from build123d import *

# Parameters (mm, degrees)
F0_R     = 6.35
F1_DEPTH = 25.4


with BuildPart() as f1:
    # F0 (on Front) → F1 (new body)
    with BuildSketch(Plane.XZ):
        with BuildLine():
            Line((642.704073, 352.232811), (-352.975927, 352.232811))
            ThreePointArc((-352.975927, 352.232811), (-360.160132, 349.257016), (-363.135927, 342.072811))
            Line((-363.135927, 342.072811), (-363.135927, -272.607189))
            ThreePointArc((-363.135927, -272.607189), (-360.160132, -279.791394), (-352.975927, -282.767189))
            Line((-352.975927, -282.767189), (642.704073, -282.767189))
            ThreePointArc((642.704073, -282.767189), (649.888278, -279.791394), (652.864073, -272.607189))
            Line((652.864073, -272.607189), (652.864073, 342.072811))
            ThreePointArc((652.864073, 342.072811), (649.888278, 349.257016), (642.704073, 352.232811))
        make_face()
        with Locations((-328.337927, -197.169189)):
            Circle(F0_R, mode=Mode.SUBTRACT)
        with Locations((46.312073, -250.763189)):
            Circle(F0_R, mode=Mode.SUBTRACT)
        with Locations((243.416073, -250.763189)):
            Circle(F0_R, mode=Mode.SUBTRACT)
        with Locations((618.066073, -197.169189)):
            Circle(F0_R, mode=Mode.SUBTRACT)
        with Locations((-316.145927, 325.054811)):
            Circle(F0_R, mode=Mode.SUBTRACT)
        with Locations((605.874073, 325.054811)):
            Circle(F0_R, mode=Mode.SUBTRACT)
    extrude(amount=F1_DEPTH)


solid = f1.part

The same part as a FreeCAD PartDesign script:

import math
import FreeCAD as App
import Part
import Sketcher
Q = App.Units.Quantity

doc = App.newDocument("Part")
body = doc.addObject("PartDesign::Body", "Body")

# Sketch on XZ plane
sketch1 = body.newObject("Sketcher::SketchObject", "Sketch")
sketch1.AttachmentSupport = (doc.getObject("XZ_Plane"), [""])
sketch1.MapMode = "FlatFace"
sketch1.addGeometry([
    Part.LineSegment(App.Vector(643, 352, 0), App.Vector(-353, 352, 0)),  # 0
    Part.ArcOfCircle(Part.Circle(App.Vector(-353, 342, 0), App.Vector(0, 0, 1), 10), math.radians(90), math.radians(180)),  # 1
    Part.LineSegment(App.Vector(-363, 342, 0), App.Vector(-363, -273, 0)),  # 2
    Part.ArcOfCircle(Part.Circle(App.Vector(-353, -273, 0), App.Vector(0, 0, 1), 10), math.radians(180), math.radians(270)),  # 3
    Part.LineSegment(App.Vector(-353, -283, 0), App.Vector(643, -283, 0)),  # 4
    Part.ArcOfCircle(Part.Circle(App.Vector(643, -273, 0), App.Vector(0, 0, 1), 10), math.radians(-90), math.radians(0)),  # 5
    Part.LineSegment(App.Vector(653, -273, 0), App.Vector(653, 342, 0)),  # 6
    Part.ArcOfCircle(Part.Circle(App.Vector(643, 342, 0), App.Vector(0, 0, 1), 10), math.radians(0), math.radians(90)),  # 7
    Part.Circle(App.Vector(-328, -197, 0), App.Vector(0, 0, 1), 6),  # 8
    Part.Circle(App.Vector(46, -251, 0), App.Vector(0, 0, 1), 6),  # 9
    Part.Circle(App.Vector(243, -251, 0), App.Vector(0, 0, 1), 6),  # 10
    Part.Circle(App.Vector(618, -197, 0), App.Vector(0, 0, 1), 6),  # 11
    Part.Circle(App.Vector(-316, 325, 0), App.Vector(0, 0, 1), 6),  # 12
    Part.Circle(App.Vector(606, 325, 0), App.Vector(0, 0, 1), 6),  # 13
], False)
sketch1.addConstraint([
    Sketcher.Constraint("Tangent", 0, 2, 1, 1),
    Sketcher.Constraint("Tangent", 1, 2, 2, 1),
    Sketcher.Constraint("Tangent", 2, 2, 3, 1),
    Sketcher.Constraint("Tangent", 3, 2, 4, 1),
    Sketcher.Constraint("Tangent", 4, 2, 5, 1),
    Sketcher.Constraint("Tangent", 5, 2, 6, 1),
    Sketcher.Constraint("Tangent", 6, 2, 7, 1),
    Sketcher.Constraint("Tangent", 7, 2, 0, 1),
    Sketcher.Constraint("Horizontal", 0),
    Sketcher.Constraint("Vertical", 2),
    Sketcher.Constraint("Horizontal", 4),
    Sketcher.Constraint("Vertical", 6),
    Sketcher.Constraint("Equal", 1, 3),
    Sketcher.Constraint("Equal", 3, 5),
    Sketcher.Constraint("Equal", 5, 7),
    Sketcher.Constraint("Equal", 8, 9),
    Sketcher.Constraint("Equal", 9, 10),
    Sketcher.Constraint("Equal", 10, 11),
    Sketcher.Constraint("Equal", 11, 12),
    Sketcher.Constraint("Equal", 12, 13),
    Sketcher.Constraint("Horizontal", 9, 3, 10, 3),
    Sketcher.Constraint("Horizontal", 8, 3, 11, 3),
    Sketcher.Constraint("Horizontal", 12, 3, 13, 3),
    Sketcher.Constraint("Diameter", 8, Q("0.5 in")),
    Sketcher.Constraint("Radius", 1, Q("0.4 in")),
    Sketcher.Constraint("DistanceX", 0, 2, 0, 1, Q("39.2 in")),
    Sketcher.Constraint("DistanceY", 2, 2, 2, 1, Q("24.2 in")),
    Sketcher.Constraint("DistanceX", 3, 3, 8, 3, Q("0.97 in")),
    Sketcher.Constraint("DistanceY", 3, 3, 8, 3, Q("2.97 in")),
    Sketcher.Constraint("DistanceX", 8, 3, 9, 3, Q("14.75 in")),
    Sketcher.Constraint("DistanceY", 9, 3, 8, 3, Q("2.11 in")),
    Sketcher.Constraint("DistanceX", 9, 3, 10, 3, Q("7.76 in")),
    Sketcher.Constraint("DistanceX", 11, 3, 5, 3, Q("0.97 in")),
    Sketcher.Constraint("DistanceX", 1, 3, 12, 3, Q("1.45 in")),
    Sketcher.Constraint("DistanceY", 12, 3, 1, 3, Q("0.67 in")),
    Sketcher.Constraint("DistanceX", 13, 3, 7, 3, Q("1.45 in")),
    Sketcher.Constraint("DistanceY", -1, 1, 1, 3, Q("342.072811 mm")),
    Sketcher.Constraint("DistanceX", 1, 3, -1, 1, Q("352.975927 mm")),
])
pad1 = body.newObject("PartDesign::Pad", "Pad")
pad1.Profile = sketch1
pad1.Length = Q("1 in")

doc.recompute()
